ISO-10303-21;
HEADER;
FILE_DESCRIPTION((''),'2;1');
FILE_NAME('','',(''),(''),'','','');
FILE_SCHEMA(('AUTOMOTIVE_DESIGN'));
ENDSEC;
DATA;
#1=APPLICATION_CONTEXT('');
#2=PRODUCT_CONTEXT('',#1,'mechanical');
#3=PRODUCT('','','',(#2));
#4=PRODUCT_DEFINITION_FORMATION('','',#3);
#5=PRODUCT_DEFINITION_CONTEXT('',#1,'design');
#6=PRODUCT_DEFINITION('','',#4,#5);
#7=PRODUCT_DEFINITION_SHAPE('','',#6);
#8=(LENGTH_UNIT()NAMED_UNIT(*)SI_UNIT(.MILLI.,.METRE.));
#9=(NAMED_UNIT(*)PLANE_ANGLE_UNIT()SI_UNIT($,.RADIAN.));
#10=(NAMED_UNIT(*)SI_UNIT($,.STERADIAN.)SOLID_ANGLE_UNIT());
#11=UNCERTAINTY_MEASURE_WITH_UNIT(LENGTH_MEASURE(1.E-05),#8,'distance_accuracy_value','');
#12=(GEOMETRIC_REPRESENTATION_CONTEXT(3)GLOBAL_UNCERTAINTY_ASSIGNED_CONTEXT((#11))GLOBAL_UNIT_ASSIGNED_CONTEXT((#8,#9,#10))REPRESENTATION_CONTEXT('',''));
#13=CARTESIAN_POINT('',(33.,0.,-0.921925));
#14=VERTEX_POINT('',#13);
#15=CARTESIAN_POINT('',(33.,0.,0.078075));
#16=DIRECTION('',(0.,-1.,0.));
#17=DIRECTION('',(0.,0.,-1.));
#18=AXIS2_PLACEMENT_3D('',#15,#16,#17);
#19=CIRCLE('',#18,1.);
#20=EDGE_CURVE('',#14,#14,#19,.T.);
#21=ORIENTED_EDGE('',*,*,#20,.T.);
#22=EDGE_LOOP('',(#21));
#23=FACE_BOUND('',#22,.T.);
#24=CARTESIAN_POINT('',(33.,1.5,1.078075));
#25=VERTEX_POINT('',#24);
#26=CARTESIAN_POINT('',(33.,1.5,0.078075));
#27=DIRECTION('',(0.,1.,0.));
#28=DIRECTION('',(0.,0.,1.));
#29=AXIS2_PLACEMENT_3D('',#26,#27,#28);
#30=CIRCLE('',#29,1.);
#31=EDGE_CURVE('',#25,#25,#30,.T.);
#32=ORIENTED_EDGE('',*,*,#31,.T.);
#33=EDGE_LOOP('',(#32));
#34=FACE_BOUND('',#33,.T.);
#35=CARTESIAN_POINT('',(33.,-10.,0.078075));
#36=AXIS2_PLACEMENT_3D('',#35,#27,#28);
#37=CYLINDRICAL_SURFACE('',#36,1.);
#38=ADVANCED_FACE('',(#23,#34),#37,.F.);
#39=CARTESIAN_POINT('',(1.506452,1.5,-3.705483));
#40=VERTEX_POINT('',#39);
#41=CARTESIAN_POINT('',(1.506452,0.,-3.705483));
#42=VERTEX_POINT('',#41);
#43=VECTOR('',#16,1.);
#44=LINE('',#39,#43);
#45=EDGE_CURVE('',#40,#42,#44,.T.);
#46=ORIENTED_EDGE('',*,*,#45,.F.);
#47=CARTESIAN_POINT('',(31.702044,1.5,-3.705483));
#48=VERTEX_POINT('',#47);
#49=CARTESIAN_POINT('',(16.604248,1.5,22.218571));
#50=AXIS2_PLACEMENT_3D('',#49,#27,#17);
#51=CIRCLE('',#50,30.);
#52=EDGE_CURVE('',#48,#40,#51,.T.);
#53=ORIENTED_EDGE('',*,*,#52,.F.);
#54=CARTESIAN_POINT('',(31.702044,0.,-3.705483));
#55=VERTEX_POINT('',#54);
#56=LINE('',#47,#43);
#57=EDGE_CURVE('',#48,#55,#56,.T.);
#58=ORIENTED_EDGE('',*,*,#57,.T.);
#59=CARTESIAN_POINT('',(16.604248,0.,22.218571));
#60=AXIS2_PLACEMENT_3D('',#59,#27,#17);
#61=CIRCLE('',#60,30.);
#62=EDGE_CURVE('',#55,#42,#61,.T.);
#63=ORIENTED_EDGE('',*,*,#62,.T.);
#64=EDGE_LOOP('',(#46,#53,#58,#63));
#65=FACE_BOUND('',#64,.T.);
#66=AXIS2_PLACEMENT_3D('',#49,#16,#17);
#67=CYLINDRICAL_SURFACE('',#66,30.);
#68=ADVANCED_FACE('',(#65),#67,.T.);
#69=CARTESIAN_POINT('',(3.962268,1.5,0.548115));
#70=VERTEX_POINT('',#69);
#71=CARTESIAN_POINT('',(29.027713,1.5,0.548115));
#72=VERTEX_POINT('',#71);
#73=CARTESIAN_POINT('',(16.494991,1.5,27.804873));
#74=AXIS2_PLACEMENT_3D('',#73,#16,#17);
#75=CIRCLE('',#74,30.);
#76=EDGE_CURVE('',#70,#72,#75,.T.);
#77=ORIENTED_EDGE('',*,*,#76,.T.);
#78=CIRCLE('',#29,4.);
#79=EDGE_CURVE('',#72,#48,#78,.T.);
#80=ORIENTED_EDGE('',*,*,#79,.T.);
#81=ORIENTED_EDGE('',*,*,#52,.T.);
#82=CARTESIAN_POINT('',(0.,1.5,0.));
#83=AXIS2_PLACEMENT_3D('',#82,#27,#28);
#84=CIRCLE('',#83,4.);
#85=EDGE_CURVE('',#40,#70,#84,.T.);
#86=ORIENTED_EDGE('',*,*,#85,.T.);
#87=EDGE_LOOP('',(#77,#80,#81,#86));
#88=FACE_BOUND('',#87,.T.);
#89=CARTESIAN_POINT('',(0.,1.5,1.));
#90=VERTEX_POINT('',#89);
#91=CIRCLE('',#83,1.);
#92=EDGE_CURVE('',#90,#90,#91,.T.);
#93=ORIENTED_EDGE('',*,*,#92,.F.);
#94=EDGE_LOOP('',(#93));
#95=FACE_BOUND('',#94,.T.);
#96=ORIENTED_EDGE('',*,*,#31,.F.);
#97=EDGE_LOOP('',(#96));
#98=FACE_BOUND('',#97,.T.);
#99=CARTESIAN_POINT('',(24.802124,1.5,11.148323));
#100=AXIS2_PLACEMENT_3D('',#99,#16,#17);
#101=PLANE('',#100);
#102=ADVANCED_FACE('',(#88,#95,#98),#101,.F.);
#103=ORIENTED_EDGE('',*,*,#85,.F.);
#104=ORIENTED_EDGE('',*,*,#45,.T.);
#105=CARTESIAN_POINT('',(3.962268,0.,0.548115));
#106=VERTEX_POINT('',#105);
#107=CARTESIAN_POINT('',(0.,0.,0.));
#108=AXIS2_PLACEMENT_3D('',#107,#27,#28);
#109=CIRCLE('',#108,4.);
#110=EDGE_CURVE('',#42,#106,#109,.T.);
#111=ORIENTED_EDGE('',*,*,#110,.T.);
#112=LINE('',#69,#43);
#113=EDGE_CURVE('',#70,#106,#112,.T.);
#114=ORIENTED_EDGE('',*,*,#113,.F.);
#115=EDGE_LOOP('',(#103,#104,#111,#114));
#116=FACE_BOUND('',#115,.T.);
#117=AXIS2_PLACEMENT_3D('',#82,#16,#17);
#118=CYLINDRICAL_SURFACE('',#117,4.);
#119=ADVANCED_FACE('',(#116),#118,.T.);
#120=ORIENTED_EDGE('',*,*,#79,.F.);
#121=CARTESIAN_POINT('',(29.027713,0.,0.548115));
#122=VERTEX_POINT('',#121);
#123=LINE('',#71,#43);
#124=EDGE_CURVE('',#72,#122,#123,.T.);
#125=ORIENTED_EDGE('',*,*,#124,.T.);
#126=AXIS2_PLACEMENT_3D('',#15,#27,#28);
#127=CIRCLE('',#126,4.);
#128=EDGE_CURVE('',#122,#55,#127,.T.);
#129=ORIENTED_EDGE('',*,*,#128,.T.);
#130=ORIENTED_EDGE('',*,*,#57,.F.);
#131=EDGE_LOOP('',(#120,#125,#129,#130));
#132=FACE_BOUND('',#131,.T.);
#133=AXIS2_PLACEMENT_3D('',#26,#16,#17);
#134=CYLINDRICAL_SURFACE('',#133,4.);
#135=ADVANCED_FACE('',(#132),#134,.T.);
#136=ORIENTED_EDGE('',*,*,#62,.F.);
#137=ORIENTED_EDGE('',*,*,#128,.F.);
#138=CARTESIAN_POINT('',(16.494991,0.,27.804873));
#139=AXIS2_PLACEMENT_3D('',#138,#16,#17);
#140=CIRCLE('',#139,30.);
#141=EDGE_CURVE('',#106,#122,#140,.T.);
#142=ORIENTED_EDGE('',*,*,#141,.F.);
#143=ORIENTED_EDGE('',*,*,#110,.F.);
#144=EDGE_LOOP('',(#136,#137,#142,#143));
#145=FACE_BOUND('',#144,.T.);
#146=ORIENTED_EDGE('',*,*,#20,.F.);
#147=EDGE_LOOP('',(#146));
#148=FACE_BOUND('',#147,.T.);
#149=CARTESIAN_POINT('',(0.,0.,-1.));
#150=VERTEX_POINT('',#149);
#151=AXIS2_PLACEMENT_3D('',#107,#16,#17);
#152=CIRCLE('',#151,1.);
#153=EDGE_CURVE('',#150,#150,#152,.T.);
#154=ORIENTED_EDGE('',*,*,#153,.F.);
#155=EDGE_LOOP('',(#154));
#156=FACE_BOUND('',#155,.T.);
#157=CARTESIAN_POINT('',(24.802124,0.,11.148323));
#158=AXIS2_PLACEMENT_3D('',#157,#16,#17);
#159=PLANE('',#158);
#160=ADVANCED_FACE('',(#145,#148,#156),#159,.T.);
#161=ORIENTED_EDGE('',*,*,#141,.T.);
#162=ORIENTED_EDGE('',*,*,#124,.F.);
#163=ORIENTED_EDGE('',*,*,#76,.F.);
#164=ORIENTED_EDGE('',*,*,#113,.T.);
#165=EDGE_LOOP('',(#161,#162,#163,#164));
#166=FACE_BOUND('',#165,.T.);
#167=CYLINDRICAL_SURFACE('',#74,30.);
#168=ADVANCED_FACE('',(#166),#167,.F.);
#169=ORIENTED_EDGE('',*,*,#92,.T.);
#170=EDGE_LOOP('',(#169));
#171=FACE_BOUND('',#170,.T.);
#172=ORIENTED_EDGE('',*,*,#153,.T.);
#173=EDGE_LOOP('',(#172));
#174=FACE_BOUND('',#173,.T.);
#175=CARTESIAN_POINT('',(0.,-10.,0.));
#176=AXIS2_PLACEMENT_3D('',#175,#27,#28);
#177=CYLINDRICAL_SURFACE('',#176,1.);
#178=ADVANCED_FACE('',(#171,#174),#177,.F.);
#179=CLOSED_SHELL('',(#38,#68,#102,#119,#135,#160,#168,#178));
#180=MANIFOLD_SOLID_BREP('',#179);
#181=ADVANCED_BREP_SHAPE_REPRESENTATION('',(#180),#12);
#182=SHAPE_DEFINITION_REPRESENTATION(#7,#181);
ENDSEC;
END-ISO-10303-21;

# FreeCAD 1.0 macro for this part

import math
import FreeCAD as App
import Part
import Sketcher

doc = App.newDocument("Part")
params = doc.addObject("Spreadsheet::Sheet", "Params")
for row, (alias, value) in enumerate([
    ("sketch1_radius", "4 mm"),
    ("sketch1_radius2", "30 mm"),
    ("sketch1_radius3", "4 mm"),
    ("sketch1_radius4", "30 mm"),
    ("pad1_length", "1.5 mm"),
    ("sketch2_diameter", "2 mm"),
    ("pocket1_length", "11.5 mm"),
], start=1):
    params.set(f"A{row}", alias)
    params.set(f"B{row}", "=" + value)
    params.setAlias(f"B{row}", alias)

body = doc.addObject("PartDesign::Body", "Body")

# Sketch on XZ plane
sketch1 = body.newObject("Sketcher::SketchObject", "Sketch")
sketch1.AttachmentSupport = (doc.getObject("XZ_Plane"), [""])
sketch1.MapMode = "FlatFace"
sketch1.addGeometry([
    Part.ArcOfCircle(Part.Circle(App.Vector(0, 0, 0), App.Vector(0, 0, 1), 4), math.radians(7.875952), math.radians(292.124048)),
    Part.ArcOfCircle(Part.Circle(App.Vector(16.494991, 27.804873, 0), App.Vector(0, 0, 1), 30), math.radians(-114.693085), math.radians(-65.306915)),
    Part.ArcOfCircle(Part.Circle(App.Vector(33, 0.078075, 0), App.Vector(0, 0, 1), 4), math.radians(-108.934619), math.radians(173.251582)),
    Part.ArcOfCircle(Part.Circle(App.Vector(16.604248, 22.218571, 0), App.Vector(0, 0, 1), 30), math.radians(-120.215906), math.radians(-59.784094)),
], False)
sketch1.addConstraint([
    Sketcher.Constraint("Coincident", 0, 1, 1, 1),
    Sketcher.Constraint("Coincident", 1, 2, 2, 2),
    Sketcher.Constraint("Coincident", 2, 1, 3, 2),
    Sketcher.Constraint("Coincident", 3, 1, 0, 2),
    Sketcher.Constraint("Coincident", 0, 3, -1, 1),
    Sketcher.Constraint("Radius", 0, 4.0),
    Sketcher.Constraint("Radius", 1, 30.0),
    Sketcher.Constraint("Radius", 2, 4.0),
    Sketcher.Constraint("Radius", 3, 30.0),
    Sketcher.Constraint("DistanceX", -1, 1, 2, 3, 33.0),
    Sketcher.Constraint("DistanceY", 2, 3, 1, 3, 27.726798),
    Sketcher.Constraint("DistanceX", -1, 1, 1, 3, 16.494991),
    Sketcher.Constraint("DistanceX", -1, 1, 3, 3, 16.604248),
    Sketcher.Constraint("DistanceY", -1, 1, 3, 3, 22.218571),
    Sketcher.Constraint("DistanceX", -1, 1, 0, 1, 3.962268),
])
sketch1.setExpression("Constraints[5]", "Params.sketch1_radius")
sketch1.setExpression("Constraints[6]", "Params.sketch1_radius2")
sketch1.setExpression("Constraints[7]", "Params.sketch1_radius3")
sketch1.setExpression("Constraints[8]", "Params.sketch1_radius4")
pad1 = body.newObject("PartDesign::Pad", "Pad")
pad1.Profile = sketch1
pad1.setExpression("Length", "Params.pad1_length")
pad1.Reversed = True

# Sketch on XZ plane
sketch2 = body.newObject("Sketcher::SketchObject", "Sketch001")
sketch2.AttachmentSupport = (doc.getObject("XZ_Plane"), [""])
sketch2.MapMode = "FlatFace"
sketch2.AttachmentOffset = App.Placement(App.Vector(0, 0, -1.5), App.Rotation())
sketch2.addGeometry([
    Part.Circle(App.Vector(33, 0.1, 0), App.Vector(0, 0, 1), 1),
    Part.Circle(App.Vector(0, 0, 0), App.Vector(0, 0, 1), 1),
], False)
sketch2.addConstraint([
    Sketcher.Constraint("Coincident", 1, 3, -1, 1),
    Sketcher.Constraint("Equal", 0, 1),
    Sketcher.Constraint("Diameter", 0, 2.0),
    Sketcher.Constraint("DistanceX", -1, 1, 0, 3, 33.0),
    Sketcher.Constraint("DistanceY", -1, 1, 0, 3, 0.078075),
])
sketch2.setExpression("Constraints[2]", "Params.sketch2_diameter")
pocket1 = body.newObject("PartDesign::Pocket", "Pocket")
pocket1.Profile = sketch2
pocket1.setExpression("Length", "Params.pocket1_length")
pocket1.Reversed = True

doc.recompute()
